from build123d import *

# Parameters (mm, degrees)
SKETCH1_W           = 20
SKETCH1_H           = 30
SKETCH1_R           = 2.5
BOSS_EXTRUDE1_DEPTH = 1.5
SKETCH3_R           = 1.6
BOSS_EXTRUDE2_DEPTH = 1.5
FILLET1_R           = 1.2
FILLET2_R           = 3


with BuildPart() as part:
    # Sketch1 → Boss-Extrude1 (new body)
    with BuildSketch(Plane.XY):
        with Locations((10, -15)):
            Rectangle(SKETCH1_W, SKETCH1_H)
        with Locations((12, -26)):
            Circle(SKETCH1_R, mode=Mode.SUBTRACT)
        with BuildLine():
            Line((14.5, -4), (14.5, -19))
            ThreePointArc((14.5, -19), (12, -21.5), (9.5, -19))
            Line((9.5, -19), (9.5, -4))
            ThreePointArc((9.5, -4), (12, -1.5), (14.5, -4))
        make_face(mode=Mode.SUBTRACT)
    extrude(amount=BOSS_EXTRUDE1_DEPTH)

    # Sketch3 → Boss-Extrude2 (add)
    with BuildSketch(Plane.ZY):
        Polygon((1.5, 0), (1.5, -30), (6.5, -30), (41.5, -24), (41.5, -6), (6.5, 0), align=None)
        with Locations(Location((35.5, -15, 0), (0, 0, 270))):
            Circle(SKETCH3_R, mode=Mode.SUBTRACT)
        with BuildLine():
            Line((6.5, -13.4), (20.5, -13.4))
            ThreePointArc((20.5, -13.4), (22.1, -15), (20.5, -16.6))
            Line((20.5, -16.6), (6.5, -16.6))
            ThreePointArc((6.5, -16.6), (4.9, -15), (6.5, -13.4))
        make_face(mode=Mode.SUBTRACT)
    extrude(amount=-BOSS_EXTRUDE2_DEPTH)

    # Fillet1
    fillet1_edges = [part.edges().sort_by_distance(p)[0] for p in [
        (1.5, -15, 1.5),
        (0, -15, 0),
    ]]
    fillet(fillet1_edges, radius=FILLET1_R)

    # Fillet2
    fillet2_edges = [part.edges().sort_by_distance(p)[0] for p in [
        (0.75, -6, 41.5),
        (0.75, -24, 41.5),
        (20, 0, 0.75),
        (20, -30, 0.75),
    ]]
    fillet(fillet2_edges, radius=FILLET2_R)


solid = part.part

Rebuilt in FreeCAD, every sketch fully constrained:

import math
import FreeCAD as App
import Part
import Sketcher
Q = App.Units.Quantity


def edges_at(feature, points):
    """Names of the edges that pass closest to the given points."""
    edges = feature.Shape.Edges
    near = lambda p: min(range(len(edges)), key=lambda i: edges[i].distToShape(Part.Vertex(*p))[0])
    return sorted({f"Edge{near(p) + 1}" for p in points})


def add_polygon(sketch, points):
    """Adds a closed chain of lines whose ends are joined by coincident constraints."""
    first, n = sketch.GeometryCount, len(points)
    for a, b in zip(points, points[1:] + points[:1]):
        sketch.addGeometry(Part.LineSegment(App.Vector(*a, 0), App.Vector(*b, 0)), False)
    for i in range(n):
        sketch.addConstraint(Sketcher.Constraint("Coincident", first + i, 2, first + (i + 1) % n, 1))

doc = App.newDocument("Part")
body = doc.addObject("PartDesign::Body", "Body")

sketch1 = doc.addObject("Sketcher::SketchObject", "Sketch")
body.addObject(sketch1)
sketch1.AttachmentSupport = (doc.XY_Plane, [""])
sketch1.MapMode = "FlatFace"
add_polygon(sketch1, [(0, 0), (0, -30), (20, -30), (20, 0)])
sketch1.addGeometry(Part.Circle(App.Vector(12, -26, 0), App.Vector(0, 0, 1), 2.5), False)
sketch1.addGeometry(Part.ArcOfCircle(Part.Circle(App.Vector(12, -4, 0), App.Vector(0, 0, 1), 2.5), math.radians(0), math.radians(180)), False)
sketch1.addGeometry(Part.LineSegment(App.Vector(14.5, -4, 0), App.Vector(14.5, -19, 0)), False)
sketch1.addGeometry(Part.ArcOfCircle(Part.Circle(App.Vector(12, -19, 0), App.Vector(0, 0, 1), 2.5), math.radians(180), math.radians(360)), False)
sketch1.addGeometry(Part.LineSegment(App.Vector(9.5, -19, 0), App.Vector(9.5, -4, 0)), False)
sketch1.addConstraint([
    Sketcher.Constraint("Tangent", 5, 1, 6, 1),
    Sketcher.Constraint("Tangent", 6, 2, 7, 2),
    Sketcher.Constraint("Tangent", 7, 1, 8, 1),
    Sketcher.Constraint("Tangent", 8, 2, 5, 2),
    Sketcher.Constraint("Vertical", 0),
    Sketcher.Constraint("Horizontal", 1),
    Sketcher.Constraint("Vertical", 2),
    Sketcher.Constraint("Horizontal", 3),
    Sketcher.Constraint("Vertical", 6),
    Sketcher.Constraint("Vertical", 8),
    Sketcher.Constraint("Coincident", 3, 2, -1, 1),
    Sketcher.Constraint("Equal", 4, 5),
    Sketcher.Constraint("Vertical", 4, 3, 5, 3),
    Sketcher.Constraint("Diameter", 4, Q("5 mm")),
    Sketcher.Constraint("DistanceX", 1, 1, 1, 2, Q("20 mm")),
    Sketcher.Constraint("DistanceY", 0, 2, 0, 1, Q("30 mm")),
    Sketcher.Constraint("DistanceY", 6, 2, 6, 1, Q("15 mm")),
    Sketcher.Constraint("DistanceX", -1, 1, 4, 3, Q("12 mm")),
    Sketcher.Constraint("DistanceY", 4, 3, -1, 1, Q("26 mm")),
    Sketcher.Constraint("DistanceY", 5, 3, -1, 1, Q("4 mm")),
])
pad1 = doc.addObject("PartDesign::Pad", "Pad")
body.addObject(pad1)
pad1.Profile = sketch1
pad1.Length = 1.5

sketch2 = doc.addObject("Sketcher::SketchObject", "Sketch001")
body.addObject(sketch2)
sketch2.AttachmentSupport = (doc.YZ_Plane, [""])
sketch2.MapMode = "FlatFace"
add_polygon(sketch2, [(0, 1.5), (-30, 1.5), (-30, 6.5), (-24, 41.5), (-6, 41.5), (0, 6.5)])
sketch2.addGeometry(Part.ArcOfCircle(Part.Circle(App.Vector(-15, 6.5, 0), App.Vector(0, 0, 1), 1.6), math.radians(180), math.radians(360)), False)
sketch2.addGeometry(Part.LineSegment(App.Vector(-13.4, 6.5, 0), App.Vector(-13.4, 20.5, 0)), False)
sketch2.addGeometry(Part.ArcOfCircle(Part.Circle(App.Vector(-15, 20.5, 0), App.Vector(0, 0, 1), 1.6), math.radians(0), math.radians(180)), False)
sketch2.addGeometry(Part.LineSegment(App.Vector(-16.6, 20.5, 0), App.Vector(-16.6, 6.5, 0)), False)
sketch2.addGeometry(Part.Circle(App.Vector(-15, 35.5, 0), App.Vector(0, 0, 1), 1.6), False)
sketch2.addConstraint([
    Sketcher.Constraint("Tangent", 6, 2, 7, 1),
    Sketcher.Constraint("Tangent", 7, 2, 8, 1),
    Sketcher.Constraint("Tangent", 8, 2, 9, 1),
    Sketcher.Constraint("Tangent", 9, 2, 6, 1),
    Sketcher.Constraint("Horizontal", 0),
    Sketcher.Constraint("Vertical", 1),
    Sketcher.Constraint("Horizontal", 3),
    Sketcher.Constraint("Vertical", 5),
    Sketcher.Constraint("Vertical", 7),
    Sketcher.Constraint("Vertical", 9),
    Sketcher.Constraint("Equal", 8, 10),
    Sketcher.Constraint("PointOnObject", 4, 2, -2),
    Sketcher.Constraint("Horizontal", 6, 3, 1, 2),
    Sketcher.Constraint("Horizontal", 1, 2, 4, 2),
    Sketcher.Constraint("Vertical", 8, 3, 10, 3),
    Sketcher.Constraint("Equal", 2, 4),
    Sketcher.Constraint("Diameter", 10, Q("3.2 mm")),
    Sketcher.Constraint("DistanceX", 0, 2, 0, 1, Q("30 mm")),
    Sketcher.Constraint("DistanceX", 3, 1, 3, 2, Q("18 mm")),
    Sketcher.Constraint("DistanceY", 1, 1, 1, 2, Q("5 mm")),
    Sketcher.Constraint("DistanceY", 7, 1, 7, 2, Q("14 mm")),
    Sketcher.Constraint("DistanceX", 6, 3, -1, 1, Q("15 mm")),
    Sketcher.Constraint("DistanceY", 8, 3, 10, 3, Q("15 mm")),
    Sketcher.Constraint("DistanceY", 10, 3, 2, 2, Q("6 mm")),
    Sketcher.Constraint("DistanceY", -1, 1, 6, 3, Q("6.5 mm")),
])
pad2 = doc.addObject("PartDesign::Pad", "Pad001")
body.addObject(pad2)
pad2.Profile = sketch2
pad2.Length = 1.5
doc.recompute()

fillet = doc.addObject("PartDesign::Fillet", "Fillet")
body.addObject(fillet)
fillet.Base = (pad2, edges_at(pad2, [(1.5, -15, 1.5), (0, -15, 0)]))
fillet.Radius = 1.2
doc.recompute()

fillet2 = doc.addObject("PartDesign::Fillet", "Fillet001")
body.addObject(fillet2)
fillet2.Base = (fillet, edges_at(fillet, [
    (0.75, -6, 41.5),
    (0.75, -24, 41.5),
    (20, 0, 0.75),
    (20, -30, 0.75),
]))
fillet2.Radius = 3

doc.recompute()
